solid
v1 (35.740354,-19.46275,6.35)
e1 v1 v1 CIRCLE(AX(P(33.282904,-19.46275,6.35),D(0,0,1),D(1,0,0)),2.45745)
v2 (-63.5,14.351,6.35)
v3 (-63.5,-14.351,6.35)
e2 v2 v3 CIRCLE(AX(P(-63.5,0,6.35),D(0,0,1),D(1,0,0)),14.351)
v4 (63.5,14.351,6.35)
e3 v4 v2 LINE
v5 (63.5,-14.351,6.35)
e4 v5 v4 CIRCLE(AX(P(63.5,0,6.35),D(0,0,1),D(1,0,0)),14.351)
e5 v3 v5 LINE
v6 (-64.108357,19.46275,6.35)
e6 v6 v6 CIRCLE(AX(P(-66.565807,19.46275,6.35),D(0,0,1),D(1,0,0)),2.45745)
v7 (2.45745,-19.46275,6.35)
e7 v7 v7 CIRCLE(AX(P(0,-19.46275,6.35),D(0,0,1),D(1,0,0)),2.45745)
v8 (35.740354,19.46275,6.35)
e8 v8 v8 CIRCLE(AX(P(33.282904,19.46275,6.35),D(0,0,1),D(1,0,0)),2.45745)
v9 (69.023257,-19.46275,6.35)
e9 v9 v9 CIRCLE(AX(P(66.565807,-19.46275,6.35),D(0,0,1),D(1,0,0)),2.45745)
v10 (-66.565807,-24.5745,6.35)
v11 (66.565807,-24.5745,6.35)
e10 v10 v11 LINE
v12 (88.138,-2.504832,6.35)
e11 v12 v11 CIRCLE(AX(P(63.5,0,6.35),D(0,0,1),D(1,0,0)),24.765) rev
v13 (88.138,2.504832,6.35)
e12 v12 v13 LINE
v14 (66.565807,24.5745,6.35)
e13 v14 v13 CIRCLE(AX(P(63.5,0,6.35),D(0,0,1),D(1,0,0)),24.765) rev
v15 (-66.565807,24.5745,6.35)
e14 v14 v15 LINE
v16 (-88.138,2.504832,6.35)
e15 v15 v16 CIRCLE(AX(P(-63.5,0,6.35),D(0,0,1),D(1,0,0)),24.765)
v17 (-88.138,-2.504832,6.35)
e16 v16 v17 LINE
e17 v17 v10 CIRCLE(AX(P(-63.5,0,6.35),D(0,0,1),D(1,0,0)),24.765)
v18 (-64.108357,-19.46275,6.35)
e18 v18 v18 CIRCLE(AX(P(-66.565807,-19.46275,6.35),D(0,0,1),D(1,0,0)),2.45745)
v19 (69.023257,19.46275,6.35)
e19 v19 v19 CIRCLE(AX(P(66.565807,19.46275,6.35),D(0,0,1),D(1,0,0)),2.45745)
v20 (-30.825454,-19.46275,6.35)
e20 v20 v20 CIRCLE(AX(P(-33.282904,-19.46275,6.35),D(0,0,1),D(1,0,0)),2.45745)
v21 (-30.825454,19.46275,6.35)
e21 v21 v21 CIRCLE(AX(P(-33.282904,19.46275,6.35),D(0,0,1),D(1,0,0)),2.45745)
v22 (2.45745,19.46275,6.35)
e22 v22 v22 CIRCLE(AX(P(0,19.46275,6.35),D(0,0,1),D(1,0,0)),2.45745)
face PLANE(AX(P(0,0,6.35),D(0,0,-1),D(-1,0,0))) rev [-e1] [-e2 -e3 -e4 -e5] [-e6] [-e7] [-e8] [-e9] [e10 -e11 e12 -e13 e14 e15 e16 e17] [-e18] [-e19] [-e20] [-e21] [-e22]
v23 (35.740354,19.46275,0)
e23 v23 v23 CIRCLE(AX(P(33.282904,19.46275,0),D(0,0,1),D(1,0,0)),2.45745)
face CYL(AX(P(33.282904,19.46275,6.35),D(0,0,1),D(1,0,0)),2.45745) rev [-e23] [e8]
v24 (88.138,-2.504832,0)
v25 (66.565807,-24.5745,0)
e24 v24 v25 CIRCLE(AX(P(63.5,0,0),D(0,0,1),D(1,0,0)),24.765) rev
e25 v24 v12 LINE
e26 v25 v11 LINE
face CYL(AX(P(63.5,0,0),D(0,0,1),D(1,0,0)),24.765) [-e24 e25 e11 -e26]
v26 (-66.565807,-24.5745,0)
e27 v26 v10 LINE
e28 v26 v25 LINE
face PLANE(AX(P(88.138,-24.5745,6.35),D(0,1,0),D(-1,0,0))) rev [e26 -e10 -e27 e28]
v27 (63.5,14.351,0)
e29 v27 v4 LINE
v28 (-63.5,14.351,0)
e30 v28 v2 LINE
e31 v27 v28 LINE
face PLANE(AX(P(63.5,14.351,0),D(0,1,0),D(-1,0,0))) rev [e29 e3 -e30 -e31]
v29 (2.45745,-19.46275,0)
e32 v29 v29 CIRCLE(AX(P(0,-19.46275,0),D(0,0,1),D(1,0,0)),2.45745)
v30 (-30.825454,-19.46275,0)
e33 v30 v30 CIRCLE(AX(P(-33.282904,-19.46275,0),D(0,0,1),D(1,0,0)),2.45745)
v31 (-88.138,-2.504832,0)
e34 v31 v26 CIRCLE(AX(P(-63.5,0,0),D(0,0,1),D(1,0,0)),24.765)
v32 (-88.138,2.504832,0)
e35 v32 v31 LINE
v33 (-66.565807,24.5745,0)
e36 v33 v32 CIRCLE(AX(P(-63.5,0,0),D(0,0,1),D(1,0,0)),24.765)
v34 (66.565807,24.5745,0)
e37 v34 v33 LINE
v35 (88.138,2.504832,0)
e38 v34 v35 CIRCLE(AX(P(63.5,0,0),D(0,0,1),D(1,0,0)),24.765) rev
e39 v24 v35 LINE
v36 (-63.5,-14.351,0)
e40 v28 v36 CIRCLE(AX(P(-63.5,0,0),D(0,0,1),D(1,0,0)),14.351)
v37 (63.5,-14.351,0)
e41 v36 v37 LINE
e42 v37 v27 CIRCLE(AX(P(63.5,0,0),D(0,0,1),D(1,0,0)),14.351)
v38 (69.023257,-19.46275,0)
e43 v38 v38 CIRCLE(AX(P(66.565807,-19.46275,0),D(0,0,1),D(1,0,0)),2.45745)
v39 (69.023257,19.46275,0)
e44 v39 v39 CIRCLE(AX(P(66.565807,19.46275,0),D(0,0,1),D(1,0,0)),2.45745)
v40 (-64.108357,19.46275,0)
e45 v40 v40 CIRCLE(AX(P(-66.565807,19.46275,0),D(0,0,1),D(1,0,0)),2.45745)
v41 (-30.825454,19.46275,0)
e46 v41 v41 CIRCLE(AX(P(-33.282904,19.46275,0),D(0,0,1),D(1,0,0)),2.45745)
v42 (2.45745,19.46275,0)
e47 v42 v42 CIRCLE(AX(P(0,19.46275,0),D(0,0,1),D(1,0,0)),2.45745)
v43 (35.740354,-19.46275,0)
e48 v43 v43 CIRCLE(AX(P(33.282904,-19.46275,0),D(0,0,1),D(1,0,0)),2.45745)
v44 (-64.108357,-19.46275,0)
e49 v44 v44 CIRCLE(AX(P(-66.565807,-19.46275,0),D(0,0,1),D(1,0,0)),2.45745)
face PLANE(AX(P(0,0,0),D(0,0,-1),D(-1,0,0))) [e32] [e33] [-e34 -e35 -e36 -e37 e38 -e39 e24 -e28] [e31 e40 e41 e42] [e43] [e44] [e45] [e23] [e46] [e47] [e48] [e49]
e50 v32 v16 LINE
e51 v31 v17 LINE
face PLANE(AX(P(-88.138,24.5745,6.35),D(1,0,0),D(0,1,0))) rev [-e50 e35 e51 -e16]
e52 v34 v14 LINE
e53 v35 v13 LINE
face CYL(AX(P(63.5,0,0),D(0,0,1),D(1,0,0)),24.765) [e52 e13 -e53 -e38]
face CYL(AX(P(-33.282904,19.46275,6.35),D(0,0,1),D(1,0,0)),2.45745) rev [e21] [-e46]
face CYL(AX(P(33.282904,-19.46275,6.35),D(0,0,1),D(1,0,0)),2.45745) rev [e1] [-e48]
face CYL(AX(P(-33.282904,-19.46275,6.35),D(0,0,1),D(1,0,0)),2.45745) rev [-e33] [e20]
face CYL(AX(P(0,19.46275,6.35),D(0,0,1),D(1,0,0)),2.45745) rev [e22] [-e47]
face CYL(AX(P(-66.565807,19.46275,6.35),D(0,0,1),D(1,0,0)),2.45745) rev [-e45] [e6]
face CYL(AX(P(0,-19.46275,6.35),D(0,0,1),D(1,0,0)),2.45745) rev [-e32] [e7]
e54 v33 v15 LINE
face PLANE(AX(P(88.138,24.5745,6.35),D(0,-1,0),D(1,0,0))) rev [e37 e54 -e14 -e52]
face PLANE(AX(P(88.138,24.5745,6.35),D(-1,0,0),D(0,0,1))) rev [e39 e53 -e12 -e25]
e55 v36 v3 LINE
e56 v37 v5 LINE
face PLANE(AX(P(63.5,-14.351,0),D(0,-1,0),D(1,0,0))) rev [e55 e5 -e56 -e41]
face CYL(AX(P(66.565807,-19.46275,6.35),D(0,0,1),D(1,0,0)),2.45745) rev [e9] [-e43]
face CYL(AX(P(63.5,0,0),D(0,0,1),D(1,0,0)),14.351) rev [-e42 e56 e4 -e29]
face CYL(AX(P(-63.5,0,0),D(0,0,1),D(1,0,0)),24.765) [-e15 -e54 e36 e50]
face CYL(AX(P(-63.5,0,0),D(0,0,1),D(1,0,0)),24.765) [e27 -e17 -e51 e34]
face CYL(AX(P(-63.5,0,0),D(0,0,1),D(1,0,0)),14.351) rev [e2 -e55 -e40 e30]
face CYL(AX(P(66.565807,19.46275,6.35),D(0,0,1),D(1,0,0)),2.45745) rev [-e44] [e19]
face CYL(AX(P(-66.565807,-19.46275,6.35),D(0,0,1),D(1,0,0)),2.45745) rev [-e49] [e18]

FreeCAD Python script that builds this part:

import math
import FreeCAD as App
import Part
import Sketcher

V = App.Vector
Q = App.Units.Quantity


def add_polygon(sketch, points):
    """Adds a closed chain of lines whose ends are joined by coincident constraints."""
    first, n = sketch.GeometryCount, len(points)
    for a, b in zip(points, points[1:] + points[:1]):
        sketch.addGeometry(Part.LineSegment(App.Vector(*a, 0), App.Vector(*b, 0)), False)
    for i in range(n):
        sketch.addConstraint(Sketcher.Constraint("Coincident", first + i, 2, first + (i + 1) % n, 1))

doc = App.newDocument("Part")
body = doc.addObject("PartDesign::Body", "Body")

sketch1 = body.newObject("Sketcher::SketchObject", "Sketch")
sketch1.AttachmentSupport = (doc.getObject("XY_Plane"), [""])
sketch1.MapMode = "FlatFace"
add_polygon(sketch1, [(-88, 25), (-88, -25), (88, -25), (88, 25)])
sketch1.addConstraint([
    Sketcher.Constraint("Vertical", 0),
    Sketcher.Constraint("Horizontal", 1),
    Sketcher.Constraint("Vertical", 2),
    Sketcher.Constraint("Horizontal", 3),
    Sketcher.Constraint("Symmetric", 0, 2, 2, 2, -1, 1),
    Sketcher.Constraint("DistanceX", 1, 1, 1, 2, Q("6.94 in")),
    Sketcher.Constraint("DistanceY", 0, 2, 0, 1, Q("1.935 in")),
])
pad1 = body.newObject("PartDesign::Pad", "Pad")
pad1.Profile = sketch1
pad1.Length = Q("0.25 in")

sketch2 = body.newObject("Sketcher::SketchObject", "Sketch001")
sketch2.AttachmentSupport = (doc.getObject("XY_Plane"), [""])
sketch2.MapMode = "FlatFace"
sketch2.AttachmentOffset = App.Placement(V(0, 0, 0.25 * 25.4), App.Rotation())
sketch2.addGeometry([
    Part.LineSegment(V(-64, -14, 0), V(64, -14, 0)),
    Part.ArcOfCircle(Part.Circle(V(64, 0, 0), V(0, 0, 1), 14), math.radians(-90), math.radians(90)),
    Part.LineSegment(V(64, 14, 0), V(-64, 14, 0)),
    Part.ArcOfCircle(Part.Circle(V(-64, 0, 0), V(0, 0, 1), 14), math.radians(90), math.radians(270)),
], False)
sketch2.addConstraint([
    Sketcher.Constraint("Tangent", 0, 2, 1, 1),
    Sketcher.Constraint("Tangent", 1, 2, 2, 1),
    Sketcher.Constraint("Tangent", 2, 2, 3, 1),
    Sketcher.Constraint("Tangent", 3, 2, 0, 1),
    Sketcher.Constraint("Horizontal", 0),
    Sketcher.Constraint("Horizontal", 2),
    Sketcher.Constraint("Symmetric", 1, 3, 3, 3, -1, 1),
    Sketcher.Constraint("DistanceX", 0, 1, 0, 2, Q("5 in")),
    Sketcher.Constraint("Radius", 1, Q("0.565 in")),
])
pocket1 = body.newObject("PartDesign::Pocket", "Pocket")
pocket1.Profile = sketch2
pocket1.Type = "ThroughAll"

sketch3 = body.newObject("Sketcher::SketchObject", "Sketch002")
sketch3.AttachmentSupport = (doc.getObject("XY_Plane"), [""])
sketch3.MapMode = "FlatFace"
sketch3.AttachmentOffset = App.Placement(V(0, 0, 0.25 * 25.4), App.Rotation())
sketch3.addGeometry([
    Part.ArcOfCircle(Part.Circle(V(-64, 0, 0), V(0, 0, 1), 25), math.radians(97), math.radians(174)),
    Part.LineSegment(V(-67, 25, 0), V(-88, 25, 0)),
    Part.LineSegment(V(-88, 25, 0), V(-88, 3, 0)),
    Part.ArcOfCircle(Part.Circle(V(-64, 0, 0), V(0, 0, 1), 25), math.radians(-174), math.radians(-97)),
    Part.LineSegment(V(-88, -3, 0), V(-88, -25, 0)),
    Part.LineSegment(V(-88, -25, 0), V(-67, -25, 0)),
    Part.LineSegment(V(88, 25, 0), V(67, 25, 0)),
    Part.ArcOfCircle(Part.Circle(V(64, 0, 0), V(0, 0, 1), 25), math.radians(6), math.radians(83)),
    Part.LineSegment(V(88, 3, 0), V(88, 25, 0)),
    Part.LineSegment(V(88, -25, 0), V(88, -3, 0)),
    Part.ArcOfCircle(Part.Circle(V(64, 0, 0), V(0, 0, 1), 25), math.radians(-83), math.radians(-6)),
    Part.LineSegment(V(67, -25, 0), V(88, -25, 0)),
], False)
sketch3.addConstraint([
    Sketcher.Constraint("Coincident", 0, 1, 1, 1),
    Sketcher.Constraint("Coincident", 1, 2, 2, 1),
    Sketcher.Constraint("Coincident", 2, 2, 0, 2),
    Sketcher.Constraint("Coincident", 3, 1, 4, 1),
    Sketcher.Constraint("Coincident", 4, 2, 5, 1),
    Sketcher.Constraint("Coincident", 5, 2, 3, 2),
    Sketcher.Constraint("Coincident", 6, 2, 7, 2),
    Sketcher.Constraint("Coincident", 7, 1, 8, 1),
    Sketcher.Constraint("Coincident", 8, 2, 6, 1),
    Sketcher.Constraint("Coincident", 9, 2, 10, 2),
    Sketcher.Constraint("Coincident", 10, 1, 11, 1),
    Sketcher.Constraint("Coincident", 11, 2, 9, 1),
    Sketcher.Constraint("Horizontal", 1),
    Sketcher.Constraint("Vertical", 2),
    Sketcher.Constraint("Vertical", 4),
    Sketcher.Constraint("Horizontal", 5),
    Sketcher.Constraint("Horizontal", 6),
    Sketcher.Constraint("Vertical", 8),
    Sketcher.Constraint("Vertical", 9),
    Sketcher.Constraint("Horizontal", 11),
    Sketcher.Constraint("Coincident", 3, 3, 0, 3),
    Sketcher.Constraint("Coincident", 10, 3, 7, 3),
    Sketcher.Constraint("Equal", 0, 3),
    Sketcher.Constraint("Equal", 3, 7),
    Sketcher.Constraint("Equal", 7, 10),
    Sketcher.Constraint("Symmetric", 0, 3, 7, 3, -1, 1),
    Sketcher.Constraint("Symmetric", 4, 2, 8, 2, -1, 1),
    Sketcher.Constraint("Symmetric", 1, 2, 11, 2, -1, 1),
    Sketcher.Constraint("Symmetric", 0, 1, 6, 2, -2),
    Sketcher.Constraint("Horizontal", 2, 2, 7, 1),
    Sketcher.Constraint("Radius", 0, Q("0.975 in")),
    Sketcher.Constraint("DistanceX", 0, 3, 7, 3, Q("5 in")),
    Sketcher.Constraint("DistanceX", 1, 2, -1, 1, Q("3.47 in")),
    Sketcher.Constraint("DistanceY", 4, 2, 1, 2, Q("1.935 in")),
])
pocket2 = body.newObject("PartDesign::Pocket", "Pocket001")
pocket2.Profile = sketch3
pocket2.Type = "ThroughAll"

sketch4 = body.newObject("Sketcher::SketchObject", "Sketch003")
sketch4.AttachmentSupport = (doc.getObject("XY_Plane"), [""])
sketch4.MapMode = "FlatFace"
sketch4.AttachmentOffset = App.Placement(V(0, 0, 0.25 * 25.4), App.Rotation())
sketch4.addGeometry([
    Part.Circle(V(-66.6, 19.5, 0), V(0, 0, 1), 2.5),
    Part.Circle(V(-33.3, 19.5, 0), V(0, 0, 1), 2.5),
    Part.Circle(V(0, 19.5, 0), V(0, 0, 1), 2.5),
    Part.Circle(V(33.3, 19.5, 0), V(0, 0, 1), 2.5),
    Part.Circle(V(66.6, 19.5, 0), V(0, 0, 1), 2.5),
    Part.Circle(V(66.6, -19.5, 0), V(0, 0, 1), 2.5),
    Part.Circle(V(33.3, -19.5, 0), V(0, 0, 1), 2.5),
    Part.Circle(V(0, -19.5, 0), V(0, 0, 1), 2.5),
    Part.Circle(V(-33.3, -19.5, 0), V(0, 0, 1), 2.5),
    Part.Circle(V(-66.6, -19.5, 0), V(0, 0, 1), 2.5),
], False)
sketch4.addConstraint([
    Sketcher.Constraint("Equal", 0, 1),
    Sketcher.Constraint("Equal", 1, 2),
    Sketcher.Constraint("Equal", 2, 3),
    Sketcher.Constraint("Equal", 3, 4),
    Sketcher.Constraint("Equal", 4, 5),
    Sketcher.Constraint("Equal", 5, 6),
    Sketcher.Constraint("Equal", 6, 7),
    Sketcher.Constraint("Equal", 7, 8),
    Sketcher.Constraint("Equal", 8, 9),
    Sketcher.Constraint("Symmetric", 0, 3, 5, 3, -1, 1),
    Sketcher.Constraint("Symmetric", 1, 3, 6, 3, -1, 1),
    Sketcher.Constraint("Symmetric", 2, 3, 7, 3, -1, 1),
    Sketcher.Constraint("Symmetric", 3, 3, 8, 3, -1, 1),
    Sketcher.Constraint("Symmetric", 4, 3, 9, 3, -1, 1),
    Sketcher.Constraint("Symmetric", 1, 3, 3, 3, -2),
    Sketcher.Constraint("Symmetric", 0, 3, 4, 3, -2),
    Sketcher.Constraint("PointOnObject", 2, 3, -2),
    Sketcher.Constraint("Horizontal", 0, 3, 1, 3),
    Sketcher.Constraint("Horizontal", 1, 3, 2, 3),
    Sketcher.Constraint("Diameter", 0, Q("0.1935 in")),
    Sketcher.Constraint("DistanceY", 5, 3, 4, 3, Q("1.5325 in")),
    Sketcher.Constraint("DistanceX", 0, 3, 3, 3, Q("99.848711 mm")),
    Sketcher.Constraint("DistanceX", 0, 3, -1, 1, Q("66.565807 mm")),
])
doc.recompute()
hole = body.newObject("PartDesign::Hole", "Hole")
hole.Profile = sketch4
hole.ThreadType = "None"
hole.Diameter = Q("0.1935 in")
hole.DepthType = "ThroughAll"

doc.recompute()
